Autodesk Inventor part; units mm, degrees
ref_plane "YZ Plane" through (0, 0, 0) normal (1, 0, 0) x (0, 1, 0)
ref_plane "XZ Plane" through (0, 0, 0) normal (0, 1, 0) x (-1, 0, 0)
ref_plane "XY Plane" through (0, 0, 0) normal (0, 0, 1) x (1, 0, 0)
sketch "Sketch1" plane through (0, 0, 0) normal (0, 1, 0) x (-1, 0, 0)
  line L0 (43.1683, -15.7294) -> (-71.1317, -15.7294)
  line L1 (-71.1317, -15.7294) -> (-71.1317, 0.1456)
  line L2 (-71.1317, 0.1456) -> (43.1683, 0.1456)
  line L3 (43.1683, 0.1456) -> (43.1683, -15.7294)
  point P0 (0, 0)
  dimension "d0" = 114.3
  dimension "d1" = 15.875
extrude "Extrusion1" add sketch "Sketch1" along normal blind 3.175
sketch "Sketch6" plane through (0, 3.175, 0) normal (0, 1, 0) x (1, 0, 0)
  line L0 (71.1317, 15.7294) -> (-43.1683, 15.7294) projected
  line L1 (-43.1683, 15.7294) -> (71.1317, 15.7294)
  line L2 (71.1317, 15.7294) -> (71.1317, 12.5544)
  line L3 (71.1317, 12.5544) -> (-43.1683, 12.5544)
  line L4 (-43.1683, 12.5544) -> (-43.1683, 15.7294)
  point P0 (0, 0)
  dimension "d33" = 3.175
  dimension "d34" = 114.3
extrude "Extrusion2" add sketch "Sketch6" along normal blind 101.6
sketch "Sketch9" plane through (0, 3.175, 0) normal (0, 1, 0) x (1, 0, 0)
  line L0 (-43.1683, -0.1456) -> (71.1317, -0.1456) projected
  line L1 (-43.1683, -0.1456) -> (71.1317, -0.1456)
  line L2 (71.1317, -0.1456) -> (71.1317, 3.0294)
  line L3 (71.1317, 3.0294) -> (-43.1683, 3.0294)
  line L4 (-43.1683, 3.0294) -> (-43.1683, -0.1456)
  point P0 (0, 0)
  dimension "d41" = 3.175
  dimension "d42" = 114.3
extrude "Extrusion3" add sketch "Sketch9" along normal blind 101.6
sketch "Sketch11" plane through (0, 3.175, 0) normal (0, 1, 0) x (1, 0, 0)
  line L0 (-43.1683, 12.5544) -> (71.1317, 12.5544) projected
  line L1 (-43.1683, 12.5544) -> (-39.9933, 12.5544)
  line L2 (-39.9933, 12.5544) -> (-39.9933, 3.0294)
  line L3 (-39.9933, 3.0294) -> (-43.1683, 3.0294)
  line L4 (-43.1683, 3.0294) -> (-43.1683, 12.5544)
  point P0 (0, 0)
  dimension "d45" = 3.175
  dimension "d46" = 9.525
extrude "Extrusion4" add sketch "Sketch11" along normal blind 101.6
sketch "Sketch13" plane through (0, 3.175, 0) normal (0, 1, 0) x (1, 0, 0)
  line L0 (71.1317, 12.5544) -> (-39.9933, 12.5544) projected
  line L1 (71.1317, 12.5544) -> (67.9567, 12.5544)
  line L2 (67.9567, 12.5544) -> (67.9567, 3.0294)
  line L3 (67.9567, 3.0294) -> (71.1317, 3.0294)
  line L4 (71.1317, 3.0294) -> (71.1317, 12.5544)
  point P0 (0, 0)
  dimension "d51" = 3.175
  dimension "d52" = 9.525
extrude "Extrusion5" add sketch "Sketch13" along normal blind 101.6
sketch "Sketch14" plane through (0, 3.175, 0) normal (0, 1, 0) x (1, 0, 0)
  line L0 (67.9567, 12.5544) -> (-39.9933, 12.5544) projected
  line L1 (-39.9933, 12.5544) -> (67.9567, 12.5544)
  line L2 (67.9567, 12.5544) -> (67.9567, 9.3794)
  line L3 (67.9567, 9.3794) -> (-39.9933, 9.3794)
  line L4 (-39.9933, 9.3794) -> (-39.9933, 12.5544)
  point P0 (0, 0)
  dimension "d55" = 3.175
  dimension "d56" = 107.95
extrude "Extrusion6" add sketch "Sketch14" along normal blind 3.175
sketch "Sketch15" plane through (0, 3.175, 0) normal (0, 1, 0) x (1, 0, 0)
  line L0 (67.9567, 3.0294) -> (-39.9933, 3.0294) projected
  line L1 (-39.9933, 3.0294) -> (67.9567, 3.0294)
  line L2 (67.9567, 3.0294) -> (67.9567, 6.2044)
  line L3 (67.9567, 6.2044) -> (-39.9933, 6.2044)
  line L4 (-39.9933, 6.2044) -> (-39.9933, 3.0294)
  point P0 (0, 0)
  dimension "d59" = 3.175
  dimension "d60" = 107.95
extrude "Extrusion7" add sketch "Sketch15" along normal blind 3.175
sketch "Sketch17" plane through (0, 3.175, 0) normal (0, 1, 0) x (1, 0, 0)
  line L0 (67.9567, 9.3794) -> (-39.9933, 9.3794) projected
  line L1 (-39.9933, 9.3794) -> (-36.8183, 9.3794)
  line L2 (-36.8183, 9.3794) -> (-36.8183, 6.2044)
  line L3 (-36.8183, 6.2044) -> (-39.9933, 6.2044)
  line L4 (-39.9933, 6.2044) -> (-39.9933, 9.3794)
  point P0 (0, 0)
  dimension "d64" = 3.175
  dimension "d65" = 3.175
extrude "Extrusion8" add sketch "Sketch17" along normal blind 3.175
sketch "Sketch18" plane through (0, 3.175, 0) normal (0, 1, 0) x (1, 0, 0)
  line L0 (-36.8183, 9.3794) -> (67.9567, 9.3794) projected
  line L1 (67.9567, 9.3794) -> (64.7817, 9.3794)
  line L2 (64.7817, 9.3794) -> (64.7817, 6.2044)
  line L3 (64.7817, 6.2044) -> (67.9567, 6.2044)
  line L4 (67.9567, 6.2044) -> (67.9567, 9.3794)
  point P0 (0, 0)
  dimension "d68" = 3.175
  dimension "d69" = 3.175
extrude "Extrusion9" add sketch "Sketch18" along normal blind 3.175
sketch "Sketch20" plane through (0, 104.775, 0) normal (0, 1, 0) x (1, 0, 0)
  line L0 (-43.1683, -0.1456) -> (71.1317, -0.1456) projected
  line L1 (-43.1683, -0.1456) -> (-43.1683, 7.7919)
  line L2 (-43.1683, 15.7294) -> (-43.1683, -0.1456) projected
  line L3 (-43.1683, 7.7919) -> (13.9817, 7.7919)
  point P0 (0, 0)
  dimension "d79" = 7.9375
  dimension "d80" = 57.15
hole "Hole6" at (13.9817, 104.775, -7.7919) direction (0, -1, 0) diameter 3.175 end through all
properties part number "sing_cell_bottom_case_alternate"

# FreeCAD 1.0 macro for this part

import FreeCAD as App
import Part
import Sketcher
Q = App.Units.Quantity

doc = App.newDocument("Part")
body = doc.addObject("PartDesign::Body", "Body")

# Sketch on XZ plane
sketch1 = body.newObject("Sketcher::SketchObject", "Sketch")
sketch1.AttachmentSupport = (doc.getObject("XZ_Plane"), [""])
sketch1.MapMode = "FlatFace"
sketch1.addGeometry([
    Part.LineSegment(App.Vector(71.1317, -15.7294, 0), App.Vector(-43.1683, -15.7294, 0)),
    Part.LineSegment(App.Vector(-43.1683, -15.7294, 0), App.Vector(-43.1683, 0.1456, 0)),
    Part.LineSegment(App.Vector(-43.1683, 0.1456, 0), App.Vector(71.1317, 0.1456, 0)),
    Part.LineSegment(App.Vector(71.1317, 0.1456, 0), App.Vector(71.1317, -15.7294, 0)),
], False)
sketch1.addConstraint([
    Sketcher.Constraint("Coincident", 0, 2, 1, 1),
    Sketcher.Constraint("Coincident", 1, 2, 2, 1),
    Sketcher.Constraint("Coincident", 2, 2, 3, 1),
    Sketcher.Constraint("Coincident", 3, 2, 0, 1),
    Sketcher.Constraint("Horizontal", 0),
    Sketcher.Constraint("Vertical", 1),
    Sketcher.Constraint("Horizontal", 2),
    Sketcher.Constraint("Vertical", 3),
    Sketcher.Constraint("DistanceX", 0, 2, 0, 1, Q("4.5 in")),
    Sketcher.Constraint("DistanceY", 1, 1, 1, 2, Q("0.625 in")),
    Sketcher.Constraint("DistanceX", 0, 2, -1, 1, Q("43.1683 mm")),
    Sketcher.Constraint("DistanceY", 0, 2, -1, 1, Q("15.7294 mm")),
])
pad1 = body.newObject("PartDesign::Pad", "Pad")
pad1.Profile = sketch1
pad1.Length = Q("0.125 in")
pad1.Reversed = True

# Sketch on XZ plane
sketch2 = body.newObject("Sketcher::SketchObject", "Sketch001")
sketch2.AttachmentSupport = (doc.getObject("XZ_Plane"), [""])
sketch2.MapMode = "FlatFace"
sketch2.AttachmentOffset = App.Placement(App.Vector(0, 0, -0.125 * 25.4), App.Rotation())
sketch2.addGeometry([
    Part.LineSegment(App.Vector(71.1317, -12.5544, 0), App.Vector(71.1317, -15.7294, 0)),
    Part.LineSegment(App.Vector(71.1317, -15.7294, 0), App.Vector(-43.1683, -15.7294, 0)),
    Part.LineSegment(App.Vector(-43.1683, -15.7294, 0), App.Vector(-43.1683, -12.5544, 0)),
    Part.LineSegment(App.Vector(-43.1683, -12.5544, 0), App.Vector(71.1317, -12.5544, 0)),
], False)
sketch2.addConstraint([
    Sketcher.Constraint("Coincident", 0, 2, 1, 1),
    Sketcher.Constraint("Coincident", 1, 2, 2, 1),
    Sketcher.Constraint("Coincident", 2, 2, 3, 1),
    Sketcher.Constraint("Coincident", 3, 2, 0, 1),
    Sketcher.Constraint("Vertical", 0),
    Sketcher.Constraint("Horizontal", 1),
    Sketcher.Constraint("Vertical", 2),
    Sketcher.Constraint("Horizontal", 3),
    Sketcher.Constraint("DistanceX", 1, 2, 1, 1, Q("4.5 in")),
    Sketcher.Constraint("DistanceY", 0, 2, 0, 1, Q("0.125 in")),
    Sketcher.Constraint("DistanceX", -1, 1, 0, 2, Q("71.1317 mm")),
    Sketcher.Constraint("DistanceY", 0, 2, -1, 1, Q("15.7294 mm")),
])
pad2 = body.newObject("PartDesign::Pad", "Pad001")
pad2.Profile = sketch2
pad2.Length = Q("4 in")
pad2.Reversed = True

# Sketch on XZ plane
sketch3 = body.newObject("Sketcher::SketchObject", "Sketch002")
sketch3.AttachmentSupport = (doc.getObject("XZ_Plane"), [""])
sketch3.MapMode = "FlatFace"
sketch3.AttachmentOffset = App.Placement(App.Vector(0, 0, -0.125 * 25.4), App.Rotation())
sketch3.addGeometry([
    Part.LineSegment(App.Vector(-43.1683, -3.0294, 0), App.Vector(-43.1683, 0.1456, 0)),
    Part.LineSegment(App.Vector(-43.1683, 0.1456, 0), App.Vector(71.1317, 0.1456, 0)),
    Part.LineSegment(App.Vector(71.1317, 0.1456, 0), App.Vector(71.1317, -3.0294, 0)),
    Part.LineSegment(App.Vector(71.1317, -3.0294, 0), App.Vector(-43.1683, -3.0294, 0)),
], False)
sketch3.addConstraint([
    Sketcher.Constraint("Coincident", 0, 2, 1, 1),
    Sketcher.Constraint("Coincident", 1, 2, 2, 1),
    Sketcher.Constraint("Coincident", 2, 2, 3, 1),
    Sketcher.Constraint("Coincident", 3, 2, 0, 1),
    Sketcher.Constraint("Vertical", 0),
    Sketcher.Constraint("Horizontal", 1),
    Sketcher.Constraint("Vertical", 2),
    Sketcher.Constraint("Horizontal", 3),
    Sketcher.Constraint("DistanceX", 1, 1, 1, 2, Q("4.5 in")),
    Sketcher.Constraint("DistanceY", 0, 1, 0, 2, Q("0.125 in")),
    Sketcher.Constraint("DistanceX", 0, 2, -1, 1, Q("43.1683 mm")),
    Sketcher.Constraint("DistanceY", -1, 1, 0, 2, Q("0.1456 mm")),
])
pad3 = body.newObject("PartDesign::Pad", "Pad002")
pad3.Profile = sketch3
pad3.Length = Q("4 in")
pad3.Reversed = True

# Sketch on XZ plane
sketch4 = body.newObject("Sketcher::SketchObject", "Sketch003")
sketch4.AttachmentSupport = (doc.getObject("XZ_Plane"), [""])
sketch4.MapMode = "FlatFace"
sketch4.AttachmentOffset = App.Placement(App.Vector(0, 0, -0.125 * 25.4), App.Rotation())
sketch4.addGeometry([
    Part.LineSegment(App.Vector(-39.9933, -12.5544, 0), App.Vector(-43.1683, -12.5544, 0)),
    Part.LineSegment(App.Vector(-43.1683, -12.5544, 0), App.Vector(-43.1683, -3.0294, 0)),
    Part.LineSegment(App.Vector(-43.1683, -3.0294, 0), App.Vector(-39.9933, -3.0294, 0)),
    Part.LineSegment(App.Vector(-39.9933, -3.0294, 0), App.Vector(-39.9933, -12.5544, 0)),
], False)
sketch4.addConstraint([
    Sketcher.Constraint("Coincident", 0, 2, 1, 1),
    Sketcher.Constraint("Coincident", 1, 2, 2, 1),
    Sketcher.Constraint("Coincident", 2, 2, 3, 1),
    Sketcher.Constraint("Coincident", 3, 2, 0, 1),
    Sketcher.Constraint("Horizontal", 0),
    Sketcher.Constraint("Vertical", 1),
    Sketcher.Constraint("Horizontal", 2),
    Sketcher.Constraint("Vertical", 3),
    Sketcher.Constraint("DistanceX", 0, 2, 0, 1, Q("0.125 in")),
    Sketcher.Constraint("DistanceY", 1, 1, 1, 2, Q("0.375 in")),
    Sketcher.Constraint("DistanceX", 0, 2, -1, 1, Q("43.1683 mm")),
    Sketcher.Constraint("DistanceY", 0, 2, -1, 1, Q("12.5544 mm")),
])
pad4 = body.newObject("PartDesign::Pad", "Pad003")
pad4.Profile = sketch4
pad4.Length = Q("4 in")
pad4.Reversed = True

# Sketch on XZ plane
sketch5 = body.newObject("Sketcher::SketchObject", "Sketch004")
sketch5.AttachmentSupport = (doc.getObject("XZ_Plane"), [""])
sketch5.MapMode = "FlatFace"
sketch5.AttachmentOffset = App.Placement(App.Vector(0, 0, -0.125 * 25.4), App.Rotation())
sketch5.addGeometry([
    Part.LineSegment(App.Vector(71.1317, -3.0294, 0), App.Vector(71.1317, -12.5544, 0)),
    Part.LineSegment(App.Vector(71.1317, -12.5544, 0), App.Vector(67.9567, -12.5544, 0)),
    Part.LineSegment(App.Vector(67.9567, -12.5544, 0), App.Vector(67.9567, -3.0294, 0)),
    Part.LineSegment(App.Vector(67.9567, -3.0294, 0), App.Vector(71.1317, -3.0294, 0)),
], False)
sketch5.addConstraint([
    Sketcher.Constraint("Coincident", 0, 2, 1, 1),
    Sketcher.Constraint("Coincident", 1, 2, 2, 1),
    Sketcher.Constraint("Coincident", 2, 2, 3, 1),
    Sketcher.Constraint("Coincident", 3, 2, 0, 1),
    Sketcher.Constraint("Vertical", 0),
    Sketcher.Constraint("Horizontal", 1),
    Sketcher.Constraint("Vertical", 2),
    Sketcher.Constraint("Horizontal", 3),
    Sketcher.Constraint("DistanceX", 1, 2, 1, 1, Q("0.125 in")),
    Sketcher.Constraint("DistanceY", 0, 2, 0, 1, Q("0.375 in")),
    Sketcher.Constraint("DistanceX", -1, 1, 0, 2, Q("71.1317 mm")),
    Sketcher.Constraint("DistanceY", 0, 2, -1, 1, Q("12.5544 mm")),
])
pad5 = body.newObject("PartDesign::Pad", "Pad004")
pad5.Profile = sketch5
pad5.Length = Q("4 in")
pad5.Reversed = True

# Sketch on XZ plane
sketch6 = body.newObject("Sketcher::SketchObject", "Sketch005")
sketch6.AttachmentSupport = (doc.getObject("XZ_Plane"), [""])
sketch6.MapMode = "FlatFace"
sketch6.AttachmentOffset = App.Placement(App.Vector(0, 0, -0.125 * 25.4), App.Rotation())
sketch6.addGeometry([
    Part.LineSegment(App.Vector(67.9567, -9.3794, 0), App.Vector(67.9567, -12.5544, 0)),
    Part.LineSegment(App.Vector(67.9567, -12.5544, 0), App.Vector(-39.9933, -12.5544, 0)),
    Part.LineSegment(App.Vector(-39.9933, -12.5544, 0), App.Vector(-39.9933, -9.3794, 0)),
    Part.LineSegment(App.Vector(-39.9933, -9.3794, 0), App.Vector(67.9567, -9.3794, 0)),
], False)
sketch6.addConstraint([
    Sketcher.Constraint("Coincident", 0, 2, 1, 1),
    Sketcher.Constraint("Coincident", 1, 2, 2, 1),
    Sketcher.Constraint("Coincident", 2, 2, 3, 1),
    Sketcher.Constraint("Coincident", 3, 2, 0, 1),
    Sketcher.Constraint("Vertical", 0),
    Sketcher.Constraint("Horizontal", 1),
    Sketcher.Constraint("Vertical", 2),
    Sketcher.Constraint("Horizontal", 3),
    Sketcher.Constraint("DistanceX", 1, 2, 1, 1, Q("4.25 in")),
    Sketcher.Constraint("DistanceY", 0, 2, 0, 1, Q("0.125 in")),
    Sketcher.Constraint("DistanceX", -1, 1, 0, 2, Q("67.9567 mm")),
    Sketcher.Constraint("DistanceY", 0, 2, -1, 1, Q("12.5544 mm")),
])
pad6 = body.newObject("PartDesign::Pad", "Pad005")
pad6.Profile = sketch6
pad6.Length = Q("0.125 in")
pad6.Reversed = True

# Sketch on XZ plane
sketch7 = body.newObject("Sketcher::SketchObject", "Sketch006")
sketch7.AttachmentSupport = (doc.getObject("XZ_Plane"), [""])
sketch7.MapMode = "FlatFace"
sketch7.AttachmentOffset = App.Placement(App.Vector(0, 0, -0.125 * 25.4), App.Rotation())
sketch7.addGeometry([
    Part.LineSegment(App.Vector(-39.9933, -3.0294, 0), App.Vector(67.9567, -3.0294, 0)),
    Part.LineSegment(App.Vector(67.9567, -3.0294, 0), App.Vector(67.9567, -6.2044, 0)),
    Part.LineSegment(App.Vector(67.9567, -6.2044, 0), App.Vector(-39.9933, -6.2044, 0)),
    Part.LineSegment(App.Vector(-39.9933, -6.2044, 0), App.Vector(-39.9933, -3.0294, 0)),
], False)
sketch7.addConstraint([
    Sketcher.Constraint("Coincident", 0, 2, 1, 1),
    Sketcher.Constraint("Coincident", 1, 2, 2, 1),
    Sketcher.Constraint("Coincident", 2, 2, 3, 1),
    Sketcher.Constraint("Coincident", 3, 2, 0, 1),
    Sketcher.Constraint("Horizontal", 0),
    Sketcher.Constraint("Vertical", 1),
    Sketcher.Constraint("Horizontal", 2),
    Sketcher.Constraint("Vertical", 3),
    Sketcher.Constraint("DistanceX", 0, 1, 0, 2, Q("4.25 in")),
    Sketcher.Constraint("DistanceY", 1, 2, 1, 1, Q("0.125 in")),
    Sketcher.Constraint("DistanceX", -1, 1, 0, 2, Q("67.9567 mm")),
    Sketcher.Constraint("DistanceY", 0, 2, -1, 1, Q("3.0294 mm")),
])
pad7 = body.newObject("PartDesign::Pad", "Pad006")
pad7.Profile = sketch7
pad7.Length = Q("0.125 in")
pad7.Reversed = True

# Sketch on XZ plane
sketch8 = body.newObject("Sketcher::SketchObject", "Sketch007")
sketch8.AttachmentSupport = (doc.getObject("XZ_Plane"), [""])
sketch8.MapMode = "FlatFace"
sketch8.AttachmentOffset = App.Placement(App.Vector(0, 0, -0.125 * 25.4), App.Rotation())
sketch8.addGeometry([
    Part.LineSegment(App.Vector(-36.8183, -6.2044, 0), App.Vector(-36.8183, -9.3794, 0)),
    Part.LineSegment(App.Vector(-36.8183, -9.3794, 0), App.Vector(-39.9933, -9.3794, 0)),
    Part.LineSegment(App.Vector(-39.9933, -9.3794, 0), App.Vector(-39.9933, -6.2044, 0)),
    Part.LineSegment(App.Vector(-39.9933, -6.2044, 0), App.Vector(-36.8183, -6.2044, 0)),
], False)
sketch8.addConstraint([
    Sketcher.Constraint("Coincident", 0, 2, 1, 1),
    Sketcher.Constraint("Coincident", 1, 2, 2, 1),
    Sketcher.Constraint("Coincident", 2, 2, 3, 1),
    Sketcher.Constraint("Coincident", 3, 2, 0, 1),
    Sketcher.Constraint("Vertical", 0),
    Sketcher.Constraint("Horizontal", 1),
    Sketcher.Constraint("Vertical", 2),
    Sketcher.Constraint("Horizontal", 3),
    Sketcher.Constraint("Equal", 3, 0),
    Sketcher.Constraint("DistanceX", 1, 2, 1, 1, Q("0.125 in")),
    Sketcher.Constraint("DistanceX", 0, 2, -1, 1, Q("36.8183 mm")),
    Sketcher.Constraint("DistanceY", 0, 2, -1, 1, Q("9.3794 mm")),
])
pad8 = body.newObject("PartDesign::Pad", "Pad007")
pad8.Profile = sketch8
pad8.Length = Q("0.125 in")
pad8.Reversed = True

# Sketch on XZ plane
sketch9 = body.newObject("Sketcher::SketchObject", "Sketch008")
sketch9.AttachmentSupport = (doc.getObject("XZ_Plane"), [""])
sketch9.MapMode = "FlatFace"
sketch9.AttachmentOffset = App.Placement(App.Vector(0, 0, -0.125 * 25.4), App.Rotation())
sketch9.addGeometry([
    Part.LineSegment(App.Vector(67.9567, -9.3794, 0), App.Vector(64.7817, -9.3794, 0)),
    Part.LineSegment(App.Vector(64.7817, -9.3794, 0), App.Vector(64.7817, -6.2044, 0)),
    Part.LineSegment(App.Vector(64.7817, -6.2044, 0), App.Vector(67.9567, -6.2044, 0)),
    Part.LineSegment(App.Vector(67.9567, -6.2044, 0), App.Vector(67.9567, -9.3794, 0)),
], False)
sketch9.addConstraint([
    Sketcher.Constraint("Coincident", 0, 2, 1, 1),
    Sketcher.Constraint("Coincident", 1, 2, 2, 1),
    Sketcher.Constraint("Coincident", 2, 2, 3, 1),
    Sketcher.Constraint("Coincident", 3, 2, 0, 1),
    Sketcher.Constraint("Horizontal", 0),
    Sketcher.Constraint("Vertical", 1),
    Sketcher.Constraint("Horizontal", 2),
    Sketcher.Constraint("Vertical", 3),
    Sketcher.Constraint("Equal", 2, 1),
    Sketcher.Constraint("DistanceX", 0, 2, 0, 1, Q("0.125 in")),
    Sketcher.Constraint("DistanceX", -1, 1, 0, 2, Q("64.7817 mm")),
    Sketcher.Constraint("DistanceY", 0, 2, -1, 1, Q("9.3794 mm")),
])
pad9 = body.newObject("PartDesign::Pad", "Pad008")
pad9.Profile = sketch9
pad9.Length = Q("0.125 in")
pad9.Reversed = True

# Sketch on XZ plane
sketch10 = body.newObject("Sketcher::SketchObject", "Sketch009")
sketch10.AttachmentSupport = (doc.getObject("XZ_Plane"), [""])
sketch10.MapMode = "FlatFace"
sketch10.AttachmentOffset = App.Placement(App.Vector(0, 0, -4.125 * 25.4), App.Rotation())
sketch10.addGeometry(Part.Circle(App.Vector(13.9817, -7.7919, 0), App.Vector(0, 0, 1), 1.5875), False)
sketch10.addConstraint([
    Sketcher.Constraint("Diameter", 0, Q("0.125 in")),
    Sketcher.Constraint("DistanceX", -1, 1, 0, 3, Q("13.9817 mm")),
    Sketcher.Constraint("DistanceY", 0, 3, -1, 1, Q("7.792 mm")),
])
doc.recompute()
hole = body.newObject("PartDesign::Hole", "Hole")
hole.Profile = sketch10
hole.ThreadType = "None"
hole.Diameter = Q("0.125 in")
hole.DepthType = "ThroughAll"
hole.Reversed = True

doc.recompute()
